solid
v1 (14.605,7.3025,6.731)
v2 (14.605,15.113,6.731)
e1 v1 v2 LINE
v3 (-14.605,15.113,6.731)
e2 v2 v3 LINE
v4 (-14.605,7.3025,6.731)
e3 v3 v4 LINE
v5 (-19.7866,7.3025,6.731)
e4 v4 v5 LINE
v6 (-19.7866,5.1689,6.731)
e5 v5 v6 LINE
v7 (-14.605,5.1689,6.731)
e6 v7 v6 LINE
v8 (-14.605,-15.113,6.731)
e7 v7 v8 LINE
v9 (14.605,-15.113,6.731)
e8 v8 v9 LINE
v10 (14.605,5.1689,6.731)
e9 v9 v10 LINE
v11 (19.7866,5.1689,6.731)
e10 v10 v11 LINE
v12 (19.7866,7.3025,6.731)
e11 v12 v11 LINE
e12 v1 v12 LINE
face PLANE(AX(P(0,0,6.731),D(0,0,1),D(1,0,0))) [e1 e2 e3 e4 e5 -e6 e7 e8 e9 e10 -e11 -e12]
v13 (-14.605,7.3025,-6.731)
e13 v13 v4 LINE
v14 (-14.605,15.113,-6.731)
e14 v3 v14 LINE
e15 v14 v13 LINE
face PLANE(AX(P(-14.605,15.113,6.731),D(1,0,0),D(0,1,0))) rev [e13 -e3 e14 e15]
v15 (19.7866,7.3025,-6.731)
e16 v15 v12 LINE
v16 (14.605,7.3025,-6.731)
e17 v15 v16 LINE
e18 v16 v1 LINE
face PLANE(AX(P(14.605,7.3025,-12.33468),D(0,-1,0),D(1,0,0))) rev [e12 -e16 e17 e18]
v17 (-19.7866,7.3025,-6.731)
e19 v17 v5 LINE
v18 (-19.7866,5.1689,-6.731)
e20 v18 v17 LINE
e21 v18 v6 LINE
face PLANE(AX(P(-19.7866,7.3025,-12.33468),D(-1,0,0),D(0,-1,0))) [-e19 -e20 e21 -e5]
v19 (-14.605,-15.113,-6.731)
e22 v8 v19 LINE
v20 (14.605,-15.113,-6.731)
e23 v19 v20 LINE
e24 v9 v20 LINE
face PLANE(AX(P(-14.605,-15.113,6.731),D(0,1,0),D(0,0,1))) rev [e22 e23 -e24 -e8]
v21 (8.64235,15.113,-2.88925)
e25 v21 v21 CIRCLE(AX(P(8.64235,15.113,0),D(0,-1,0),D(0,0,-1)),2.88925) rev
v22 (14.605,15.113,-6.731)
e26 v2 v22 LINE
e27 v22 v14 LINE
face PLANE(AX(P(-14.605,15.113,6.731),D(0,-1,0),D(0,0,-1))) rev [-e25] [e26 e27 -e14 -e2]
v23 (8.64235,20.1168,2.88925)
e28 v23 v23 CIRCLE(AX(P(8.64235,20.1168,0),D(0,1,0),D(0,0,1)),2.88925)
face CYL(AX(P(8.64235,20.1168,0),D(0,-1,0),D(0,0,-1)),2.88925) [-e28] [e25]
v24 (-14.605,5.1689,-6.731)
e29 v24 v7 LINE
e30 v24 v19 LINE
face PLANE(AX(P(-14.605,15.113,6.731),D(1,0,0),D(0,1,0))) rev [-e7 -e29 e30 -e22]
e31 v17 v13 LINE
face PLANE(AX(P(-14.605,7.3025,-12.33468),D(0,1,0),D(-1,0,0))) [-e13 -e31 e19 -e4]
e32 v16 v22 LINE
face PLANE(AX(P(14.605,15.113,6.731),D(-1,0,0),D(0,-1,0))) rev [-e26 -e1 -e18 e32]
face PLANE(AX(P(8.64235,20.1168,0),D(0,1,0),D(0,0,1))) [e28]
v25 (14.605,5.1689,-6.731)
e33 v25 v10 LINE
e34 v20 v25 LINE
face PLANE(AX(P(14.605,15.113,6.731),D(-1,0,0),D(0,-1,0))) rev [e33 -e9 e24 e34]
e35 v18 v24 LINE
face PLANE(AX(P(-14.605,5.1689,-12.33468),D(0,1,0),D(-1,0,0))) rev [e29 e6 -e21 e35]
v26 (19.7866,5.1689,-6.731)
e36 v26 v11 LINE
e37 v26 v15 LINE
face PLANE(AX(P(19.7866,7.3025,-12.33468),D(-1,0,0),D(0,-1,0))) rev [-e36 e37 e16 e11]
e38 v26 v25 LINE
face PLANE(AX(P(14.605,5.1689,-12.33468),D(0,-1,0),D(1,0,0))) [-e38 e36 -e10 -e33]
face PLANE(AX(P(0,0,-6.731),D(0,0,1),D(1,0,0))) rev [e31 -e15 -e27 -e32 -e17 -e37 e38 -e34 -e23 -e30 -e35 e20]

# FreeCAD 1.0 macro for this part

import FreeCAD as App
import Part
import Sketcher

V = App.Vector
Q = App.Units.Quantity

doc = App.newDocument("Part")
params = doc.addObject("Spreadsheet::Sheet", "Params")
for row, (alias, value) in enumerate([
    ("sketch1_width", "1.15 in"),
    ("sketch1_height", "1.19 in"),
    ("pad1_length", "0.53 in"),
    ("sketch2_width", "0.204 in"),
    ("sketch2_height", "0.084 in"),
    ("pad2_length", "0.53 in"),
    ("pad3_length", "0.197 in"),
], start=1):
    params.set(f"A{row}", alias)
    params.set(f"B{row}", "=" + value)
    params.setAlias(f"B{row}", alias)

body = doc.addObject("PartDesign::Body", "Body")

sketch1 = body.newObject("Sketcher::SketchObject", "Sketch")
sketch1.AttachmentSupport = (doc.getObject("XY_Plane"), [""])
sketch1.MapMode = "FlatFace"
sketch1.addGeometry(Part.LineSegment(V(-15, 15, 0), V(-15, -15, 0)), False)
sketch1.addGeometry(Part.LineSegment(V(-15, -15, 0), V(15, -15, 0)), False)
sketch1.addGeometry(Part.LineSegment(V(15, -15, 0), V(15, 15, 0)), False)
sketch1.addGeometry(Part.LineSegment(V(15, 15, 0), V(-15, 15, 0)), False)
sketch1.addConstraint(Sketcher.Constraint("Coincident", 0, 2, 1, 1))
sketch1.addConstraint(Sketcher.Constraint("Coincident", 1, 2, 2, 1))
sketch1.addConstraint(Sketcher.Constraint("Coincident", 2, 2, 3, 1))
sketch1.addConstraint(Sketcher.Constraint("Coincident", 3, 2, 0, 1))
sketch1.addConstraint(Sketcher.Constraint("Vertical", 0))
sketch1.addConstraint(Sketcher.Constraint("Horizontal", 1))
sketch1.addConstraint(Sketcher.Constraint("Vertical", 2))
sketch1.addConstraint(Sketcher.Constraint("Horizontal", 3))
sketch1.addConstraint(Sketcher.Constraint("Symmetric", 0, 2, 2, 2, -1, 1))
sketch1.addConstraint(Sketcher.Constraint("DistanceX", 1, 1, 1, 2, Q("1.15 in")))
sketch1.addConstraint(Sketcher.Constraint("DistanceY", 0, 2, 0, 1, Q("1.19 in")))
sketch1.setExpression("Constraints[9]", "Params.sketch1_width")
sketch1.setExpression("Constraints[10]", "Params.sketch1_height")
pad1 = body.newObject("PartDesign::Pad", "Pad")
pad1.Profile = sketch1
pad1.setExpression("Length", "Params.pad1_length")
pad1.Midplane = True

sketch2 = body.newObject("Sketcher::SketchObject", "Sketch001")
sketch2.AttachmentSupport = (doc.getObject("XY_Plane"), [""])
sketch2.MapMode = "FlatFace"
sketch2.AttachmentOffset = App.Placement(V(0, 0, 0.265 * 25.4), App.Rotation())
sketch2.addGeometry(Part.LineSegment(V(-19.8, 7.3, 0), V(-19.8, 5.2, 0)), False)
sketch2.addGeometry(Part.LineSegment(V(-19.8, 5.2, 0), V(-14.6, 5.2, 0)), False)
sketch2.addGeometry(Part.LineSegment(V(-14.6, 5.2, 0), V(-14.6, 7.3, 0)), False)
sketch2.addGeometry(Part.LineSegment(V(-14.6, 7.3, 0), V(-19.8, 7.3, 0)), False)
sketch2.addConstraint(Sketcher.Constraint("Coincident", 0, 2, 1, 1))
sketch2.addConstraint(Sketcher.Constraint("Coincident", 1, 2, 2, 1))
sketch2.addConstraint(Sketcher.Constraint("Coincident", 2, 2, 3, 1))
sketch2.addConstraint(Sketcher.Constraint("Coincident", 3, 2, 0, 1))
sketch2.addConstraint(Sketcher.Constraint("Vertical", 0))
sketch2.addConstraint(Sketcher.Constraint("Horizontal", 1))
sketch2.addConstraint(Sketcher.Constraint("Vertical", 2))
sketch2.addConstraint(Sketcher.Constraint("Horizontal", 3))
sketch2.addConstraint(Sketcher.Constraint("DistanceX", 1, 1, 1, 2, Q("0.204 in")))
sketch2.addConstraint(Sketcher.Constraint("DistanceY", 0, 2, 0, 1, Q("0.084 in")))
sketch2.addConstraint(Sketcher.Constraint("DistanceX", 0, 2, -1, 1, Q("0.779 in")))
sketch2.addConstraint(Sketcher.Constraint("DistanceY", -1, 1, 0, 2, Q("0.2035 in")))
sketch2.setExpression("Constraints[8]", "Params.sketch2_width")
sketch2.setExpression("Constraints[9]", "Params.sketch2_height")
pad2 = body.newObject("PartDesign::Pad", "Pad001")
pad2.Profile = sketch2
pad2.setExpression("Length", "Params.pad2_length")
pad2.Reversed = True
doc.recompute()

mirrored = body.newObject("PartDesign::Mirrored", "Mirrored")
mirrored.Originals = [pad2]
mirrored.MirrorPlane = (doc.getObject("YZ_Plane"), [""])
body.Tip = mirrored

sketch3 = body.newObject("Sketcher::SketchObject", "Sketch002")
sketch3.AttachmentSupport = (doc.getObject("XZ_Plane"), [""])
sketch3.MapMode = "FlatFace"
sketch3.AttachmentOffset = App.Placement(V(0, 0, -0.595 * 25.4), App.Rotation())
sketch3.addGeometry(Part.Circle(V(8.6, 0, 0), V(0, 0, 1), 2.9), False)
sketch3.addConstraint(Sketcher.Constraint("PointOnObject", 0, 3, -1))
sketch3.addConstraint(Sketcher.Constraint("Diameter", 0, Q("0.2275 in")))
sketch3.addConstraint(Sketcher.Constraint("DistanceX", -1, 1, 0, 3, 8.64235))
pad3 = body.newObject("PartDesign::Pad", "Pad002")
pad3.Profile = sketch3
pad3.setExpression("Length", "Params.pad3_length")
pad3.Reversed = True

doc.recompute()
